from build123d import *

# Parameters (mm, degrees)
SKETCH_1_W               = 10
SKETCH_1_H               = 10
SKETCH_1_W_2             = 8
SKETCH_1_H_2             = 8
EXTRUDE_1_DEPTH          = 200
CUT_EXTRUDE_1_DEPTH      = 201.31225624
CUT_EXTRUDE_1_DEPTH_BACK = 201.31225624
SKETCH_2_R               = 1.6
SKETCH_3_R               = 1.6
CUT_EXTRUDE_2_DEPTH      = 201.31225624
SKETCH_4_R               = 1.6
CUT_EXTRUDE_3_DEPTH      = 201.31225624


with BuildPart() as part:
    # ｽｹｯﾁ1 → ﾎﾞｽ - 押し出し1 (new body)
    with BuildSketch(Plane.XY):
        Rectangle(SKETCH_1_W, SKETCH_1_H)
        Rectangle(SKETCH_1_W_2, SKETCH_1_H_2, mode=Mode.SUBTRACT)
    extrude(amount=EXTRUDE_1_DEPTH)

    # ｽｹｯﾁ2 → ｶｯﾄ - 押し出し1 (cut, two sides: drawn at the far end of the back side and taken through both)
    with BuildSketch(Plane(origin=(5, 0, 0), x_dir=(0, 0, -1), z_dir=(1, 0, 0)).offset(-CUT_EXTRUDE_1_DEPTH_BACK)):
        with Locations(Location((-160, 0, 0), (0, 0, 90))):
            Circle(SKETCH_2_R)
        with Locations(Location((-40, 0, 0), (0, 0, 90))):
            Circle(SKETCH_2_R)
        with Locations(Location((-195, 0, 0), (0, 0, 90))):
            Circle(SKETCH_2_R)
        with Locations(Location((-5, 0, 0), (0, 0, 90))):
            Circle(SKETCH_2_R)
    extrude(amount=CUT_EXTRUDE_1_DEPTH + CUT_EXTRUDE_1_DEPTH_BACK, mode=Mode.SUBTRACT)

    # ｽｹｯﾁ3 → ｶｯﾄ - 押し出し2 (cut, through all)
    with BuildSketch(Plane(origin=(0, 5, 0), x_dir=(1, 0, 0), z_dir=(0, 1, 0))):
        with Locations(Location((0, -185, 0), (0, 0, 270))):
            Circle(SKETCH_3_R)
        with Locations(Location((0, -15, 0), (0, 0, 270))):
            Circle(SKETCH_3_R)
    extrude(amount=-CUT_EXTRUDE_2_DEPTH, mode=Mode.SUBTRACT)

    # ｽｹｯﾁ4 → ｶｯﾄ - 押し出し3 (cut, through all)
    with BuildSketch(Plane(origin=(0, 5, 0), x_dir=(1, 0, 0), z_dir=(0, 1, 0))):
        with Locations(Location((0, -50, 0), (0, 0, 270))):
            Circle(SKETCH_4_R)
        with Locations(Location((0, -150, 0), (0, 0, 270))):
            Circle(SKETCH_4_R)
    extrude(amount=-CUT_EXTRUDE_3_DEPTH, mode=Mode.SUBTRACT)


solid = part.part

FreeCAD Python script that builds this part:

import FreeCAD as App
import Part
import Sketcher
Q = App.Units.Quantity


def add_polygon(sketch, points):
    """Adds a closed chain of lines whose ends are joined by coincident constraints."""
    first, n = sketch.GeometryCount, len(points)
    for a, b in zip(points, points[1:] + points[:1]):
        sketch.addGeometry(Part.LineSegment(App.Vector(*a, 0), App.Vector(*b, 0)), False)
    for i in range(n):
        sketch.addConstraint(Sketcher.Constraint("Coincident", first + i, 2, first + (i + 1) % n, 1))

doc = App.newDocument("Part")
params = doc.addObject("Spreadsheet::Sheet", "Params")
for row, (alias, value) in enumerate([
    ("sketch1_width", "10 mm"),
    ("sketch1_width2", "8 mm"),
    ("pad1_length", "200 mm"),
    ("sketch2_diameter", "3.2 mm"),
    ("sketch3_diameter", "3.2 mm"),
    ("sketch4_diameter", "3.2 mm"),
], start=1):
    params.set(f"A{row}", alias)
    params.set(f"B{row}", "=" + value)
    params.setAlias(f"B{row}", alias)

body = doc.addObject("PartDesign::Body", "Body")

sketch1 = body.newObject("Sketcher::SketchObject", "Sketch")
sketch1.AttachmentSupport = (doc.getObject("XY_Plane"), [""])
sketch1.MapMode = "FlatFace"
add_polygon(sketch1, [(-5, 5), (-5, -5), (5, -5), (5, 5)])
add_polygon(sketch1, [(4, -4), (-4, -4), (-4, 4), (4, 4)])
sketch1.addConstraint(Sketcher.Constraint("Vertical", 0))
sketch1.addConstraint(Sketcher.Constraint("Horizontal", 1))
sketch1.addConstraint(Sketcher.Constraint("Vertical", 2))
sketch1.addConstraint(Sketcher.Constraint("Horizontal", 3))
sketch1.addConstraint(Sketcher.Constraint("Horizontal", 4))
sketch1.addConstraint(Sketcher.Constraint("Vertical", 5))
sketch1.addConstraint(Sketcher.Constraint("Horizontal", 6))
sketch1.addConstraint(Sketcher.Constraint("Vertical", 7))
sketch1.addConstraint(Sketcher.Constraint("Symmetric", 0, 2, 2, 2, -1, 1))
sketch1.addConstraint(Sketcher.Constraint("Symmetric", 4, 2, 6, 2, -1, 1))
sketch1.addConstraint(Sketcher.Constraint("Equal", 3, 0))
sketch1.addConstraint(Sketcher.Constraint("Equal", 6, 5))
sketch1.addConstraint(Sketcher.Constraint("DistanceX", 1, 1, 1, 2, Q("10 mm")))
sketch1.addConstraint(Sketcher.Constraint("DistanceX", 4, 2, 4, 1, Q("8 mm")))
sketch1.setExpression("Constraints[20]", "Params.sketch1_width")
sketch1.setExpression("Constraints[21]", "Params.sketch1_width2")
pad1 = body.newObject("PartDesign::Pad", "Pad")
pad1.Profile = sketch1
pad1.setExpression("Length", "Params.pad1_length")

sketch2 = body.newObject("Sketcher::SketchObject", "Sketch001")
sketch2.AttachmentSupport = (doc.getObject("YZ_Plane"), [""])
sketch2.MapMode = "FlatFace"
sketch2.AttachmentOffset = App.Placement(App.Vector(0, 0, 5), App.Rotation())
sketch2.addGeometry(Part.Circle(App.Vector(0, 160, 0), App.Vector(0, 0, 1), 1.6), False)
sketch2.addGeometry(Part.Circle(App.Vector(0, 40, 0), App.Vector(0, 0, 1), 1.6), False)
sketch2.addGeometry(Part.Circle(App.Vector(0, 195, 0), App.Vector(0, 0, 1), 1.6), False)
sketch2.addGeometry(Part.Circle(App.Vector(0, 5, 0), App.Vector(0, 0, 1), 1.6), False)
sketch2.addConstraint(Sketcher.Constraint("Equal", 0, 1))
sketch2.addConstraint(Sketcher.Constraint("Equal", 1, 2))
sketch2.addConstraint(Sketcher.Constraint("Equal", 2, 3))
sketch2.addConstraint(Sketcher.Constraint("PointOnObject", 0, 3, -2))
sketch2.addConstraint(Sketcher.Constraint("PointOnObject", 1, 3, -2))
sketch2.addConstraint(Sketcher.Constraint("PointOnObject", 2, 3, -2))
sketch2.addConstraint(Sketcher.Constraint("PointOnObject", 3, 3, -2))
sketch2.addConstraint(Sketcher.Constraint("Diameter", 0, Q("3.2 mm")))
sketch2.addConstraint(Sketcher.Constraint("DistanceY", -1, 1, 0, 3, Q("160 mm")))
sketch2.addConstraint(Sketcher.Constraint("DistanceY", -1, 1, 1, 3, Q("40 mm")))
sketch2.addConstraint(Sketcher.Constraint("DistanceY", -1, 1, 2, 3, Q("195 mm")))
sketch2.addConstraint(Sketcher.Constraint("DistanceY", -1, 1, 3, 3, Q("5 mm")))
sketch2.setExpression("Constraints[7]", "Params.sketch2_diameter")
pocket1 = body.newObject("PartDesign::Pocket", "Pocket")
pocket1.Profile = sketch2
pocket1.Type = "ThroughAll"
pocket1.Midplane = True

sketch3 = body.newObject("Sketcher::SketchObject", "Sketch002")
sketch3.AttachmentSupport = (doc.getObject("XZ_Plane"), [""])
sketch3.MapMode = "FlatFace"
sketch3.AttachmentOffset = App.Placement(App.Vector(0, 0, -5), App.Rotation())
sketch3.addGeometry(Part.Circle(App.Vector(0, 185, 0), App.Vector(0, 0, 1), 1.6), False)
sketch3.addGeometry(Part.Circle(App.Vector(0, 15, 0), App.Vector(0, 0, 1), 1.6), False)
sketch3.addConstraint(Sketcher.Constraint("Equal", 0, 1))
sketch3.addConstraint(Sketcher.Constraint("PointOnObject", 0, 3, -2))
sketch3.addConstraint(Sketcher.Constraint("PointOnObject", 1, 3, -2))
sketch3.addConstraint(Sketcher.Constraint("Diameter", 0, Q("3.2 mm")))
sketch3.addConstraint(Sketcher.Constraint("DistanceY", -1, 1, 0, 3, Q("185 mm")))
sketch3.addConstraint(Sketcher.Constraint("DistanceY", -1, 1, 1, 3, Q("15 mm")))
sketch3.setExpression("Constraints[3]", "Params.sketch3_diameter")
pocket2 = body.newObject("PartDesign::Pocket", "Pocket001")
pocket2.Profile = sketch3
pocket2.Type = "ThroughAll"
pocket2.Reversed = True

sketch4 = body.newObject("Sketcher::SketchObject", "Sketch003")
sketch4.AttachmentSupport = (doc.getObject("XZ_Plane"), [""])
sketch4.MapMode = "FlatFace"
sketch4.AttachmentOffset = App.Placement(App.Vector(0, 0, -5), App.Rotation())
sketch4.addGeometry(Part.Circle(App.Vector(0, 50, 0), App.Vector(0, 0, 1), 1.6), False)
sketch4.addGeometry(Part.Circle(App.Vector(0, 150, 0), App.Vector(0, 0, 1), 1.6), False)
sketch4.addConstraint(Sketcher.Constraint("Equal", 0, 1))
sketch4.addConstraint(Sketcher.Constraint("PointOnObject", 0, 3, -2))
sketch4.addConstraint(Sketcher.Constraint("PointOnObject", 1, 3, -2))
sketch4.addConstraint(Sketcher.Constraint("Diameter", 0, Q("3.2 mm")))
sketch4.addConstraint(Sketcher.Constraint("DistanceY", -1, 1, 0, 3, Q("50 mm")))
sketch4.addConstraint(Sketcher.Constraint("DistanceY", -1, 1, 1, 3, Q("150 mm")))
sketch4.setExpression("Constraints[3]", "Params.sketch4_diameter")
pocket3 = body.newObject("PartDesign::Pocket", "Pocket002")
pocket3.Profile = sketch4
pocket3.Type = "ThroughAll"
pocket3.Reversed = True

doc.recompute()
